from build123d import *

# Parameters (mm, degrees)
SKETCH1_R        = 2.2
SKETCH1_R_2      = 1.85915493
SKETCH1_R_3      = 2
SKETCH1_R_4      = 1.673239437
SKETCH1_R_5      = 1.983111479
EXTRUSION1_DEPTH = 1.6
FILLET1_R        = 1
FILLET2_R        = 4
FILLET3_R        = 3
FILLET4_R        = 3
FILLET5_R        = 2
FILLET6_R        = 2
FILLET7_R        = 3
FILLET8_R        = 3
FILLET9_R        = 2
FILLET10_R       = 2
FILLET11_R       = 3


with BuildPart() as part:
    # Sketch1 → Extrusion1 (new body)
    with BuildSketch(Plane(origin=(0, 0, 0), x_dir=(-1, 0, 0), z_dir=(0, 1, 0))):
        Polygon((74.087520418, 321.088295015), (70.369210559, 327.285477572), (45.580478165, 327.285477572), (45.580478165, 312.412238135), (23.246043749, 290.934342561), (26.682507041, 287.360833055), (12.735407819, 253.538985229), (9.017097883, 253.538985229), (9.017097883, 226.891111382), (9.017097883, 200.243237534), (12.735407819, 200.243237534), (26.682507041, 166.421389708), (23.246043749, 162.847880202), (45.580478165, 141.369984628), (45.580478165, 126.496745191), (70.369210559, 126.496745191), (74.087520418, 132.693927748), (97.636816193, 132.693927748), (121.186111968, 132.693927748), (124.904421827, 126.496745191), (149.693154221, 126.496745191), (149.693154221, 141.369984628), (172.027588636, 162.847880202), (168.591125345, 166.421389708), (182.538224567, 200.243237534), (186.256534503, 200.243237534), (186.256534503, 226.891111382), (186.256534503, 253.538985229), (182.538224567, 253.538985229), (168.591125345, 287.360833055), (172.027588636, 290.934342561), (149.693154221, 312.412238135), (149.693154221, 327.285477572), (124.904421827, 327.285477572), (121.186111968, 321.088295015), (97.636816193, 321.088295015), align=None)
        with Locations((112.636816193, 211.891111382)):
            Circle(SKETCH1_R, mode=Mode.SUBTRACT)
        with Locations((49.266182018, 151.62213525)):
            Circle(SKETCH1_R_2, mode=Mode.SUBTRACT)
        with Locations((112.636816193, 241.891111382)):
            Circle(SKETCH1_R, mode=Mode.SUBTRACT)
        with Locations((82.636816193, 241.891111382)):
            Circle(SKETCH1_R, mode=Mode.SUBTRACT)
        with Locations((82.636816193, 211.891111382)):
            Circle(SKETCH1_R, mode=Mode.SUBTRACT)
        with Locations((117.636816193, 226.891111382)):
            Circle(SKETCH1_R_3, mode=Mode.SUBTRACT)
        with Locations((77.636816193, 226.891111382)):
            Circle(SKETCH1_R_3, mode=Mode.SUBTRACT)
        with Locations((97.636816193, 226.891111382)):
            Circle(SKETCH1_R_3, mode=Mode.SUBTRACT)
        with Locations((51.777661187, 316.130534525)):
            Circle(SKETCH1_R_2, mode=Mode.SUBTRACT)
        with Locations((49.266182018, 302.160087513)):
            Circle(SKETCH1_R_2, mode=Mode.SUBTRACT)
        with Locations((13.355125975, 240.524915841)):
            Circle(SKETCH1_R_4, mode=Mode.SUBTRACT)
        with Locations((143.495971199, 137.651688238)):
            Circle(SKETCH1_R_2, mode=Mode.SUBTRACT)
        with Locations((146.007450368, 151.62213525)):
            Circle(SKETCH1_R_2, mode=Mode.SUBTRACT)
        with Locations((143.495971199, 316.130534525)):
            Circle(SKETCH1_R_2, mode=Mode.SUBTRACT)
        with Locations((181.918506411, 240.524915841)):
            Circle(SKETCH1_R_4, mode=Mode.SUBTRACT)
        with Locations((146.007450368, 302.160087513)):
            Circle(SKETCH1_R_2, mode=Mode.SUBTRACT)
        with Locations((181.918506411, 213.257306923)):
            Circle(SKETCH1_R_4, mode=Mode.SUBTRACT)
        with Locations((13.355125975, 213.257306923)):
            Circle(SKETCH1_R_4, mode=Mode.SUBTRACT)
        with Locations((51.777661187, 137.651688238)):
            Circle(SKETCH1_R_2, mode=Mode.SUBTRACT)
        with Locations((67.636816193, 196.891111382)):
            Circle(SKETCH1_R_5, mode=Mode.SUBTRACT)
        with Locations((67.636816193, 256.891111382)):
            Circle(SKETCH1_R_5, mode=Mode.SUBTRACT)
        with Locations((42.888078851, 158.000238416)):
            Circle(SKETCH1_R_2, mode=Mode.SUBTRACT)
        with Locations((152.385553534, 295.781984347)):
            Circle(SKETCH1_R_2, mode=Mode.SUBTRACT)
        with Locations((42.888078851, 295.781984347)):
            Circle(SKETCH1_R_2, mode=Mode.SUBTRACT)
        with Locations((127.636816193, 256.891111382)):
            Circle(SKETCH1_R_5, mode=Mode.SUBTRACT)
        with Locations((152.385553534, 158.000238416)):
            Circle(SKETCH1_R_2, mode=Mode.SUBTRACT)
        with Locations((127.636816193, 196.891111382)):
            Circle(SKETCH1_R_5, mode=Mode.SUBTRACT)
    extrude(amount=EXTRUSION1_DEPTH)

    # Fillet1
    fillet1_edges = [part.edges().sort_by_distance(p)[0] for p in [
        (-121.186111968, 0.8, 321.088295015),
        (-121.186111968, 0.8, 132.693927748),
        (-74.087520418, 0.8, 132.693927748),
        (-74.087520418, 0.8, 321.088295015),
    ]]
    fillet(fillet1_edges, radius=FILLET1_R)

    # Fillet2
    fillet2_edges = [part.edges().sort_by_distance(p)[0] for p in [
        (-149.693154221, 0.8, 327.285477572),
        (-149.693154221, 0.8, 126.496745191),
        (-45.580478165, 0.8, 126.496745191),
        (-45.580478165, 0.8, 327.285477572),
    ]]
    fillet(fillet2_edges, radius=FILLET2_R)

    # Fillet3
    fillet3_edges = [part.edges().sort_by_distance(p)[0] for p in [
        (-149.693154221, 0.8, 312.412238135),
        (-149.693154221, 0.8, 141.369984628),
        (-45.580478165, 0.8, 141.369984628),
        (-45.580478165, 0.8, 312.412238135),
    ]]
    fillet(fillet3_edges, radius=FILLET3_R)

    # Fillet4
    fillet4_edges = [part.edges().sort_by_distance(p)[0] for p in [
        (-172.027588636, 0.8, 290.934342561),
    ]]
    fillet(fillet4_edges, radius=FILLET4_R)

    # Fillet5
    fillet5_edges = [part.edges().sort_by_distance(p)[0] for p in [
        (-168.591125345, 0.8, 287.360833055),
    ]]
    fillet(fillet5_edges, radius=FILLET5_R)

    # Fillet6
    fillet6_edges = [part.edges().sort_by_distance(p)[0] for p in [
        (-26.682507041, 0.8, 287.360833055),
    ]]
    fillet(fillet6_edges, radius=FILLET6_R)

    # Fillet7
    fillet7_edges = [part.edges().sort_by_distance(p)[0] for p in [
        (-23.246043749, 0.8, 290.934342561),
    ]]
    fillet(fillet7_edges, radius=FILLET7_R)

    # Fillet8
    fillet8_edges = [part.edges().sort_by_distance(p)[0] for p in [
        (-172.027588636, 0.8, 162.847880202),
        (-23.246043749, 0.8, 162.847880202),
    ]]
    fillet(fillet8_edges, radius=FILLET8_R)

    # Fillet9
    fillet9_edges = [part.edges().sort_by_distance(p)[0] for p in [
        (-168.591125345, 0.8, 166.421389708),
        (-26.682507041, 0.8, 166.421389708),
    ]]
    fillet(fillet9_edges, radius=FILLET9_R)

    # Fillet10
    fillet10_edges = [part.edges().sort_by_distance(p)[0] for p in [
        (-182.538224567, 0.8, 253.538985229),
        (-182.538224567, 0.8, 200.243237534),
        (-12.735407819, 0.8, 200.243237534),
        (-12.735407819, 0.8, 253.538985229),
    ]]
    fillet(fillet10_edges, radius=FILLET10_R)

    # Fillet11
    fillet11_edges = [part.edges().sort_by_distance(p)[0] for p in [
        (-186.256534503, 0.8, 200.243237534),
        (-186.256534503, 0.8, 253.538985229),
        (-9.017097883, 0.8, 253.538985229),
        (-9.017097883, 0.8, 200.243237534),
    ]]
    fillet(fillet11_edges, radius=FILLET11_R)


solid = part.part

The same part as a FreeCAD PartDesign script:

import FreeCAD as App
import Part
import Sketcher
Q = App.Units.Quantity


def edges_at(feature, points):
    """Names of the edges that pass closest to the given points."""
    edges = feature.Shape.Edges
    near = lambda p: min(range(len(edges)), key=lambda i: edges[i].distToShape(Part.Vertex(*p))[0])
    return sorted({f"Edge{near(p) + 1}" for p in points})


def add_polygon(sketch, points):
    """Adds a closed chain of lines whose ends are joined by coincident constraints."""
    first, n = sketch.GeometryCount, len(points)
    for a, b in zip(points, points[1:] + points[:1]):
        sketch.addGeometry(Part.LineSegment(App.Vector(*a, 0), App.Vector(*b, 0)), False)
    for i in range(n):
        sketch.addConstraint(Sketcher.Constraint("Coincident", first + i, 2, first + (i + 1) % n, 1))

doc = App.newDocument("Part")
body = doc.addObject("PartDesign::Body", "Body")

# Sketch on XZ plane
sketch1 = body.newObject("Sketcher::SketchObject", "Sketch")
sketch1.AttachmentSupport = (doc.getObject("XZ_Plane"), [""])
sketch1.MapMode = "FlatFace"
add_polygon(sketch1, [(-74.1, 321.1), (-70.4, 327.3), (-45.6, 327.3), (-45.6, 312.4), (-23.2, 290.9), (-26.7, 287.4), (-12.7, 253.5), (-9, 253.5), (-9, 200.2), (-12.7, 200.2), (-26.7, 166.4), (-23.2, 162.8), (-45.6, 141.4), (-45.6, 126.5), (-70.4, 126.5), (-74.1, 132.7), (-121.2, 132.7), (-124.9, 126.5), (-149.7, 126.5), (-149.7, 141.4), (-172, 162.8), (-168.6, 166.4), (-182.5, 200.2), (-186.3, 200.2), (-186.3, 253.5), (-182.5, 253.5), (-168.6, 287.4), (-172, 290.9), (-149.7, 312.4), (-149.7, 327.3), (-124.9, 327.3), (-121.2, 321.1)])  # lines 0-31
sketch1.addGeometry(Part.Circle(App.Vector(-51.8, 137.7, 0), App.Vector(0, 0, 1), 1.9), False)  # 32
sketch1.addGeometry(Part.Circle(App.Vector(-42.9, 158, 0), App.Vector(0, 0, 1), 1.9), False)  # 33
sketch1.addGeometry(Part.Circle(App.Vector(-49.3, 151.6, 0), App.Vector(0, 0, 1), 1.9), False)  # 34
sketch1.addGeometry(Part.Circle(App.Vector(-13.4, 213.3, 0), App.Vector(0, 0, 1), 1.7), False)  # 35
sketch1.addGeometry(Part.Circle(App.Vector(-67.6, 196.9, 0), App.Vector(0, 0, 1), 2), False)  # 36
sketch1.addGeometry(Part.Circle(App.Vector(-82.6, 211.9, 0), App.Vector(0, 0, 1), 2.2), False)  # 37
sketch1.addGeometry(Part.Circle(App.Vector(-143.5, 137.7, 0), App.Vector(0, 0, 1), 1.9), False)  # 38
sketch1.addGeometry(Part.Circle(App.Vector(-146, 151.6, 0), App.Vector(0, 0, 1), 1.9), False)  # 39
sketch1.addGeometry(Part.Circle(App.Vector(-152.4, 158, 0), App.Vector(0, 0, 1), 1.9), False)  # 40
sketch1.addGeometry(Part.Circle(App.Vector(-127.6, 196.9, 0), App.Vector(0, 0, 1), 2), False)  # 41
sketch1.addGeometry(Part.Circle(App.Vector(-112.6, 211.9, 0), App.Vector(0, 0, 1), 2.2), False)  # 42
sketch1.addGeometry(Part.Circle(App.Vector(-181.9, 213.3, 0), App.Vector(0, 0, 1), 1.7), False)  # 43
sketch1.addGeometry(Part.Circle(App.Vector(-13.4, 240.5, 0), App.Vector(0, 0, 1), 1.7), False)  # 44
sketch1.addGeometry(Part.Circle(App.Vector(-77.6, 226.9, 0), App.Vector(0, 0, 1), 2), False)  # 45
sketch1.addGeometry(Part.Circle(App.Vector(-82.6, 241.9, 0), App.Vector(0, 0, 1), 2.2), False)  # 46
sketch1.addGeometry(Part.Circle(App.Vector(-67.6, 256.9, 0), App.Vector(0, 0, 1), 2), False)  # 47
sketch1.addGeometry(Part.Circle(App.Vector(-42.9, 295.8, 0), App.Vector(0, 0, 1), 1.9), False)  # 48
sketch1.addGeometry(Part.Circle(App.Vector(-49.3, 302.2, 0), App.Vector(0, 0, 1), 1.9), False)  # 49
sketch1.addGeometry(Part.Circle(App.Vector(-51.8, 316.1, 0), App.Vector(0, 0, 1), 1.9), False)  # 50
sketch1.addGeometry(Part.Circle(App.Vector(-97.6, 226.9, 0), App.Vector(0, 0, 1), 2), False)  # 51
sketch1.addGeometry(Part.Circle(App.Vector(-117.6, 226.9, 0), App.Vector(0, 0, 1), 2), False)  # 52
sketch1.addGeometry(Part.Circle(App.Vector(-112.6, 241.9, 0), App.Vector(0, 0, 1), 2.2), False)  # 53
sketch1.addGeometry(Part.Circle(App.Vector(-127.6, 256.9, 0), App.Vector(0, 0, 1), 2), False)  # 54
sketch1.addGeometry(Part.Circle(App.Vector(-181.9, 240.5, 0), App.Vector(0, 0, 1), 1.7), False)  # 55
sketch1.addGeometry(Part.Circle(App.Vector(-146, 302.2, 0), App.Vector(0, 0, 1), 1.9), False)  # 56
sketch1.addGeometry(Part.Circle(App.Vector(-152.4, 295.8, 0), App.Vector(0, 0, 1), 1.9), False)  # 57
sketch1.addGeometry(Part.Circle(App.Vector(-143.5, 316.1, 0), App.Vector(0, 0, 1), 1.9), False)  # 58
sketch1.addConstraint(Sketcher.Constraint("Horizontal", 1))
sketch1.addConstraint(Sketcher.Constraint("Vertical", 2))
sketch1.addConstraint(Sketcher.Constraint("Horizontal", 6))
sketch1.addConstraint(Sketcher.Constraint("Vertical", 7))
sketch1.addConstraint(Sketcher.Constraint("Horizontal", 8))
sketch1.addConstraint(Sketcher.Constraint("Vertical", 12))
sketch1.addConstraint(Sketcher.Constraint("Horizontal", 13))
sketch1.addConstraint(Sketcher.Constraint("Horizontal", 15))
sketch1.addConstraint(Sketcher.Constraint("Horizontal", 17))
sketch1.addConstraint(Sketcher.Constraint("Vertical", 18))
sketch1.addConstraint(Sketcher.Constraint("Horizontal", 22))
sketch1.addConstraint(Sketcher.Constraint("Vertical", 23))
sketch1.addConstraint(Sketcher.Constraint("Horizontal", 24))
sketch1.addConstraint(Sketcher.Constraint("Vertical", 28))
sketch1.addConstraint(Sketcher.Constraint("Horizontal", 29))
sketch1.addConstraint(Sketcher.Constraint("Horizontal", 31))
sketch1.addConstraint(Sketcher.Constraint("Equal", 32, 33))
sketch1.addConstraint(Sketcher.Constraint("Equal", 33, 34))
sketch1.addConstraint(Sketcher.Constraint("Equal", 34, 38))
sketch1.addConstraint(Sketcher.Constraint("Equal", 38, 39))
sketch1.addConstraint(Sketcher.Constraint("Equal", 39, 40))
sketch1.addConstraint(Sketcher.Constraint("Equal", 36, 41))
sketch1.addConstraint(Sketcher.Constraint("Equal", 37, 42))
sketch1.addConstraint(Sketcher.Constraint("Equal", 35, 43))
sketch1.addConstraint(Sketcher.Constraint("Equal", 43, 44))
sketch1.addConstraint(Sketcher.Constraint("Equal", 42, 46))
sketch1.addConstraint(Sketcher.Constraint("Equal", 41, 47))
sketch1.addConstraint(Sketcher.Constraint("Equal", 40, 48))
sketch1.addConstraint(Sketcher.Constraint("Equal", 48, 49))
sketch1.addConstraint(Sketcher.Constraint("Equal", 49, 50))
sketch1.addConstraint(Sketcher.Constraint("Equal", 45, 51))
sketch1.addConstraint(Sketcher.Constraint("Equal", 51, 52))
sketch1.addConstraint(Sketcher.Constraint("Equal", 46, 53))
sketch1.addConstraint(Sketcher.Constraint("Equal", 47, 54))
sketch1.addConstraint(Sketcher.Constraint("Equal", 44, 55))
sketch1.addConstraint(Sketcher.Constraint("Equal", 50, 56))
sketch1.addConstraint(Sketcher.Constraint("Equal", 56, 57))
sketch1.addConstraint(Sketcher.Constraint("Equal", 57, 58))
sketch1.addConstraint(Sketcher.Constraint("Perpendicular", 3, 4))
sketch1.addConstraint(Sketcher.Constraint("Perpendicular", 10, 11))
sketch1.addConstraint(Sketcher.Constraint("Parallel", 0, 16))
sketch1.addConstraint(Sketcher.Constraint("Perpendicular", 4, 19))
sketch1.addConstraint(Sketcher.Constraint("Perpendicular", 19, 20))
sketch1.addConstraint(Sketcher.Constraint("Parallel", 5, 21))
sketch1.addConstraint(Sketcher.Constraint("Parallel", 9, 25))
sketch1.addConstraint(Sketcher.Constraint("Perpendicular", 11, 26))
sketch1.addConstraint(Sketcher.Constraint("Perpendicular", 26, 27))
sketch1.addConstraint(Sketcher.Constraint("Parallel", 14, 30))
sketch1.addConstraint(Sketcher.Constraint("Horizontal", 32, 3, 38, 3))
sketch1.addConstraint(Sketcher.Constraint("Horizontal", 34, 3, 39, 3))
sketch1.addConstraint(Sketcher.Constraint("Horizontal", 33, 3, 40, 3))
sketch1.addConstraint(Sketcher.Constraint("Horizontal", 36, 3, 41, 3))
sketch1.addConstraint(Sketcher.Constraint("Horizontal", 37, 3, 42, 3))
sketch1.addConstraint(Sketcher.Constraint("Horizontal", 35, 3, 43, 3))
sketch1.addConstraint(Sketcher.Constraint("Horizontal", 45, 3, 51, 3))
sketch1.addConstraint(Sketcher.Constraint("Horizontal", 51, 3, 52, 3))
sketch1.addConstraint(Sketcher.Constraint("Horizontal", 46, 3, 53, 3))
sketch1.addConstraint(Sketcher.Constraint("Horizontal", 47, 3, 54, 3))
sketch1.addConstraint(Sketcher.Constraint("Horizontal", 44, 3, 55, 3))
sketch1.addConstraint(Sketcher.Constraint("Horizontal", 49, 3, 56, 3))
sketch1.addConstraint(Sketcher.Constraint("Horizontal", 48, 3, 57, 3))
sketch1.addConstraint(Sketcher.Constraint("Horizontal", 50, 3, 58, 3))
sketch1.addConstraint(Sketcher.Constraint("Horizontal", 13, 2, 16, 2))
sketch1.addConstraint(Sketcher.Constraint("Horizontal", 11, 2, 18, 2))
sketch1.addConstraint(Sketcher.Constraint("Horizontal", 10, 2, 19, 2))
sketch1.addConstraint(Sketcher.Constraint("Horizontal", 9, 2, 20, 2))
sketch1.addConstraint(Sketcher.Constraint("Horizontal", 8, 2, 21, 2))
sketch1.addConstraint(Sketcher.Constraint("Horizontal", 6, 2, 23, 2))
sketch1.addConstraint(Sketcher.Constraint("Horizontal", 4, 2, 25, 2))
sketch1.addConstraint(Sketcher.Constraint("Horizontal", 3, 2, 26, 2))
sketch1.addConstraint(Sketcher.Constraint("Horizontal", 2, 2, 27, 2))
sketch1.addConstraint(Sketcher.Constraint("Horizontal", 1, 2, 28, 2))
sketch1.addConstraint(Sketcher.Constraint("Vertical", 35, 3, 44, 3))
sketch1.addConstraint(Sketcher.Constraint("Vertical", 37, 3, 46, 3))
sketch1.addConstraint(Sketcher.Constraint("Vertical", 36, 3, 47, 3))
sketch1.addConstraint(Sketcher.Constraint("Vertical", 33, 3, 48, 3))
sketch1.addConstraint(Sketcher.Constraint("Vertical", 34, 3, 49, 3))
sketch1.addConstraint(Sketcher.Constraint("Vertical", 32, 3, 50, 3))
sketch1.addConstraint(Sketcher.Constraint("Vertical", 42, 3, 53, 3))
sketch1.addConstraint(Sketcher.Constraint("Vertical", 41, 3, 54, 3))
sketch1.addConstraint(Sketcher.Constraint("Vertical", 43, 3, 55, 3))
sketch1.addConstraint(Sketcher.Constraint("Vertical", 39, 3, 56, 3))
sketch1.addConstraint(Sketcher.Constraint("Vertical", 40, 3, 57, 3))
sketch1.addConstraint(Sketcher.Constraint("Vertical", 38, 3, 58, 3))
sketch1.addConstraint(Sketcher.Constraint("Vertical", 5, 2, 8, 2))
sketch1.addConstraint(Sketcher.Constraint("Vertical", 4, 2, 9, 2))
sketch1.addConstraint(Sketcher.Constraint("Vertical", 3, 2, 10, 2))
sketch1.addConstraint(Sketcher.Constraint("Vertical", 2, 2, 11, 2))
sketch1.addConstraint(Sketcher.Constraint("Vertical", 0, 2, 13, 2))
sketch1.addConstraint(Sketcher.Constraint("Vertical", 21, 2, 24, 2))
sketch1.addConstraint(Sketcher.Constraint("Vertical", 20, 2, 25, 2))
sketch1.addConstraint(Sketcher.Constraint("Vertical", 19, 2, 26, 2))
sketch1.addConstraint(Sketcher.Constraint("Vertical", 16, 2, 29, 2))
sketch1.addConstraint(Sketcher.Constraint("Vertical", 15, 2, 30, 2))
sketch1.addConstraint(Sketcher.Constraint("Vertical", 14, 2, 31, 2))
sketch1.addConstraint(Sketcher.Constraint("Equal", 13, 17))
sketch1.addConstraint(Sketcher.Constraint("Equal", 8, 22))
sketch1.addConstraint(Sketcher.Constraint("Equal", 2, 12))
sketch1.addConstraint(Sketcher.Constraint("Diameter", 45, 4.0))
sketch1.addConstraint(Sketcher.Constraint("Diameter", 37, 4.4))
sketch1.addConstraint(Sketcher.Constraint("DistanceX", 37, 3, 36, 3, 15.0))
sketch1.addConstraint(Sketcher.Constraint("DistanceY", 36, 3, 37, 3, 15.0))
sketch1.addConstraint(Sketcher.Constraint("DistanceX", 41, 3, 37, 3, 45.0))
sketch1.addConstraint(Sketcher.Constraint("DistanceX", 41, 3, 42, 3, 15.0))
sketch1.addConstraint(Sketcher.Constraint("DistanceX", 37, 3, 45, 3, 5.0))
sketch1.addConstraint(Sketcher.Constraint("DistanceY", 37, 3, 45, 3, 15.0))
sketch1.addConstraint(Sketcher.Constraint("DistanceY", 45, 3, 46, 3, 15.0))
sketch1.addConstraint(Sketcher.Constraint("DistanceY", 46, 3, 47, 3, 15.0))
sketch1.addConstraint(Sketcher.Constraint("DistanceX", 51, 3, 45, 3, 20.0))
sketch1.addConstraint(Sketcher.Constraint("DistanceX", 52, 3, 42, 3, 5.0))
sketch1.addConstraint(Sketcher.Constraint("Angle", 3, Q("-43.88 deg")))
sketch1.addConstraint(Sketcher.Constraint("Diameter", 32, 3.71831))
sketch1.addConstraint(Sketcher.Constraint("Diameter", 35, 3.346479))
sketch1.addConstraint(Sketcher.Constraint("Diameter", 36, 3.966223))
sketch1.addConstraint(Sketcher.Constraint("DistanceY", 5, 2, 48, 3, 42.242999))
sketch1.addConstraint(Sketcher.Constraint("DistanceY", 33, 3, 7, 2, 42.242999))
sketch1.addConstraint(Sketcher.Constraint("DistanceX", 6, 1, 6, 2, 3.71831))
sketch1.addConstraint(Sketcher.Constraint("DistanceX", 15, 2, 15, 1, 47.098592))
sketch1.addConstraint(Sketcher.Constraint("DistanceY", 2, 2, 2, 1, 14.873239))
sketch1.addConstraint(Sketcher.Constraint("DistanceX", 1, 2, 48, 3, 2.692399))
sketch1.addConstraint(Sketcher.Constraint("DistanceY", 4, 2, 50, 3, 28.769701))
sketch1.addConstraint(Sketcher.Constraint("DistanceX", 4, 2, 5, 2, 13.947099))
sketch1.addConstraint(Sketcher.Constraint("DistanceY", 32, 3, 9, 2, 28.769701))
sketch1.addConstraint(Sketcher.Constraint("DistanceX", 15, 2, 13, 2, 50.816901))
sketch1.addConstraint(Sketcher.Constraint("DistanceX", 40, 3, 17, 2, 2.692399))
sketch1.addConstraint(Sketcher.Constraint("DistanceX", 1, 1, 1, 2, 24.788732))
sketch1.addConstraint(Sketcher.Constraint("DistanceY", 7, 2, 7, 1, 53.295748))
sketch1.addConstraint(Sketcher.Constraint("DistanceX", 32, 3, -1, 1, 51.777661))
sketch1.addConstraint(Sketcher.Constraint("DistanceY", -1, 1, 32, 3, 137.651688))
sketch1.addConstraint(Sketcher.Constraint("DistanceX", 33, 3, -1, 1, 42.888079))
sketch1.addConstraint(Sketcher.Constraint("DistanceY", -1, 1, 33, 3, 158.000238))
sketch1.addConstraint(Sketcher.Constraint("DistanceY", -1, 1, 36, 3, 196.891111))
sketch1.addConstraint(Sketcher.Constraint("DistanceX", 38, 3, -1, 1, 143.495971))
sketch1.addConstraint(Sketcher.Constraint("DistanceX", 39, 3, -1, 1, 146.00745))
sketch1.addConstraint(Sketcher.Constraint("DistanceY", -1, 1, 2, 2, 312.412238))
sketch1.addConstraint(Sketcher.Constraint("DistanceY", -1, 1, 10, 2, 162.84788))
sketch1.addConstraint(Sketcher.Constraint("DistanceX", 32, 3, 34, 3, 2.511479))
sketch1.addConstraint(Sketcher.Constraint("DistanceY", 33, 3, 35, 3, 55.257069))
sketch1.addConstraint(Sketcher.Constraint("DistanceY", 34, 3, 35, 3, 61.635172))
sketch1.addConstraint(Sketcher.Constraint("DistanceX", 36, 3, 35, 3, 54.28169))
sketch1.addConstraint(Sketcher.Constraint("DistanceX", 43, 3, 41, 3, 54.28169))
sketch1.addConstraint(Sketcher.Constraint("DistanceY", 35, 3, 44, 3, 27.267609))
sketch1.addConstraint(Sketcher.Constraint("DistanceY", 44, 3, 49, 3, 61.635172))
sketch1.addConstraint(Sketcher.Constraint("DistanceX", 47, 3, 1, 2, 22.056338))
sketch1.addConstraint(Sketcher.Constraint("DistanceY", 14, 2, 32, 3, 4.95776))
pad1 = body.newObject("PartDesign::Pad", "Pad")
pad1.Profile = sketch1
pad1.Length = 1.6
pad1.Reversed = True
doc.recompute()

fillet = body.newObject("PartDesign::Fillet", "Fillet")
fillet.Base = (pad1, edges_at(pad1, [
    (-121.186, 0.8, 321.088),
    (-121.186, 0.8, 132.694),
    (-74.088, 0.8, 132.694),
    (-74.088, 0.8, 321.088),
]))
fillet.Radius = 1
doc.recompute()

fillet2 = body.newObject("PartDesign::Fillet", "Fillet001")
fillet2.Base = (fillet, edges_at(fillet, [
    (-149.693, 0.8, 327.285),
    (-149.693, 0.8, 126.497),
    (-45.58, 0.8, 126.497),
    (-45.58, 0.8, 327.285),
]))
fillet2.Radius = 4
doc.recompute()

fillet3 = body.newObject("PartDesign::Fillet", "Fillet002")
fillet3.Base = (fillet2, edges_at(fillet2, [
    (-149.693, 0.8, 312.412),
    (-149.693, 0.8, 141.37),
    (-45.58, 0.8, 141.37),
    (-45.58, 0.8, 312.412),
]))
fillet3.Radius = 3
doc.recompute()

fillet4 = body.newObject("PartDesign::Fillet", "Fillet003")
fillet4.Base = (fillet3, edges_at(fillet3, [(-172.028, 0.8, 290.934)]))
fillet4.Radius = 3
doc.recompute()

fillet5 = body.newObject("PartDesign::Fillet", "Fillet004")
fillet5.Base = (fillet4, edges_at(fillet4, [(-168.591, 0.8, 287.361)]))
fillet5.Radius = 2
doc.recompute()

fillet6 = body.newObject("PartDesign::Fillet", "Fillet005")
fillet6.Base = (fillet5, edges_at(fillet5, [(-26.683, 0.8, 287.361)]))
fillet6.Radius = 2
doc.recompute()

fillet7 = body.newObject("PartDesign::Fillet", "Fillet006")
fillet7.Base = (fillet6, edges_at(fillet6, [(-23.246, 0.8, 290.934)]))
fillet7.Radius = 3
doc.recompute()

fillet8 = body.newObject("PartDesign::Fillet", "Fillet007")
fillet8.Base = (fillet7, edges_at(fillet7, [(-172.028, 0.8, 162.848), (-23.246, 0.8, 162.848)]))
fillet8.Radius = 3
doc.recompute()

fillet9 = body.newObject("PartDesign::Fillet", "Fillet008")
fillet9.Base = (fillet8, edges_at(fillet8, [(-168.591, 0.8, 166.421), (-26.683, 0.8, 166.421)]))
fillet9.Radius = 2
doc.recompute()

fillet10 = body.newObject("PartDesign::Fillet", "Fillet009")
fillet10.Base = (fillet9, edges_at(fillet9, [
    (-182.538, 0.8, 253.539),
    (-182.538, 0.8, 200.243),
    (-12.735, 0.8, 200.243),
    (-12.735, 0.8, 253.539),
]))
fillet10.Radius = 2
doc.recompute()

fillet11 = body.newObject("PartDesign::Fillet", "Fillet010")
fillet11.Base = (fillet10, edges_at(fillet10, [
    (-186.257, 0.8, 200.243),
    (-186.257, 0.8, 253.539),
    (-9.017, 0.8, 253.539),
    (-9.017, 0.8, 200.243),
]))
fillet11.Radius = 3

doc.recompute()
